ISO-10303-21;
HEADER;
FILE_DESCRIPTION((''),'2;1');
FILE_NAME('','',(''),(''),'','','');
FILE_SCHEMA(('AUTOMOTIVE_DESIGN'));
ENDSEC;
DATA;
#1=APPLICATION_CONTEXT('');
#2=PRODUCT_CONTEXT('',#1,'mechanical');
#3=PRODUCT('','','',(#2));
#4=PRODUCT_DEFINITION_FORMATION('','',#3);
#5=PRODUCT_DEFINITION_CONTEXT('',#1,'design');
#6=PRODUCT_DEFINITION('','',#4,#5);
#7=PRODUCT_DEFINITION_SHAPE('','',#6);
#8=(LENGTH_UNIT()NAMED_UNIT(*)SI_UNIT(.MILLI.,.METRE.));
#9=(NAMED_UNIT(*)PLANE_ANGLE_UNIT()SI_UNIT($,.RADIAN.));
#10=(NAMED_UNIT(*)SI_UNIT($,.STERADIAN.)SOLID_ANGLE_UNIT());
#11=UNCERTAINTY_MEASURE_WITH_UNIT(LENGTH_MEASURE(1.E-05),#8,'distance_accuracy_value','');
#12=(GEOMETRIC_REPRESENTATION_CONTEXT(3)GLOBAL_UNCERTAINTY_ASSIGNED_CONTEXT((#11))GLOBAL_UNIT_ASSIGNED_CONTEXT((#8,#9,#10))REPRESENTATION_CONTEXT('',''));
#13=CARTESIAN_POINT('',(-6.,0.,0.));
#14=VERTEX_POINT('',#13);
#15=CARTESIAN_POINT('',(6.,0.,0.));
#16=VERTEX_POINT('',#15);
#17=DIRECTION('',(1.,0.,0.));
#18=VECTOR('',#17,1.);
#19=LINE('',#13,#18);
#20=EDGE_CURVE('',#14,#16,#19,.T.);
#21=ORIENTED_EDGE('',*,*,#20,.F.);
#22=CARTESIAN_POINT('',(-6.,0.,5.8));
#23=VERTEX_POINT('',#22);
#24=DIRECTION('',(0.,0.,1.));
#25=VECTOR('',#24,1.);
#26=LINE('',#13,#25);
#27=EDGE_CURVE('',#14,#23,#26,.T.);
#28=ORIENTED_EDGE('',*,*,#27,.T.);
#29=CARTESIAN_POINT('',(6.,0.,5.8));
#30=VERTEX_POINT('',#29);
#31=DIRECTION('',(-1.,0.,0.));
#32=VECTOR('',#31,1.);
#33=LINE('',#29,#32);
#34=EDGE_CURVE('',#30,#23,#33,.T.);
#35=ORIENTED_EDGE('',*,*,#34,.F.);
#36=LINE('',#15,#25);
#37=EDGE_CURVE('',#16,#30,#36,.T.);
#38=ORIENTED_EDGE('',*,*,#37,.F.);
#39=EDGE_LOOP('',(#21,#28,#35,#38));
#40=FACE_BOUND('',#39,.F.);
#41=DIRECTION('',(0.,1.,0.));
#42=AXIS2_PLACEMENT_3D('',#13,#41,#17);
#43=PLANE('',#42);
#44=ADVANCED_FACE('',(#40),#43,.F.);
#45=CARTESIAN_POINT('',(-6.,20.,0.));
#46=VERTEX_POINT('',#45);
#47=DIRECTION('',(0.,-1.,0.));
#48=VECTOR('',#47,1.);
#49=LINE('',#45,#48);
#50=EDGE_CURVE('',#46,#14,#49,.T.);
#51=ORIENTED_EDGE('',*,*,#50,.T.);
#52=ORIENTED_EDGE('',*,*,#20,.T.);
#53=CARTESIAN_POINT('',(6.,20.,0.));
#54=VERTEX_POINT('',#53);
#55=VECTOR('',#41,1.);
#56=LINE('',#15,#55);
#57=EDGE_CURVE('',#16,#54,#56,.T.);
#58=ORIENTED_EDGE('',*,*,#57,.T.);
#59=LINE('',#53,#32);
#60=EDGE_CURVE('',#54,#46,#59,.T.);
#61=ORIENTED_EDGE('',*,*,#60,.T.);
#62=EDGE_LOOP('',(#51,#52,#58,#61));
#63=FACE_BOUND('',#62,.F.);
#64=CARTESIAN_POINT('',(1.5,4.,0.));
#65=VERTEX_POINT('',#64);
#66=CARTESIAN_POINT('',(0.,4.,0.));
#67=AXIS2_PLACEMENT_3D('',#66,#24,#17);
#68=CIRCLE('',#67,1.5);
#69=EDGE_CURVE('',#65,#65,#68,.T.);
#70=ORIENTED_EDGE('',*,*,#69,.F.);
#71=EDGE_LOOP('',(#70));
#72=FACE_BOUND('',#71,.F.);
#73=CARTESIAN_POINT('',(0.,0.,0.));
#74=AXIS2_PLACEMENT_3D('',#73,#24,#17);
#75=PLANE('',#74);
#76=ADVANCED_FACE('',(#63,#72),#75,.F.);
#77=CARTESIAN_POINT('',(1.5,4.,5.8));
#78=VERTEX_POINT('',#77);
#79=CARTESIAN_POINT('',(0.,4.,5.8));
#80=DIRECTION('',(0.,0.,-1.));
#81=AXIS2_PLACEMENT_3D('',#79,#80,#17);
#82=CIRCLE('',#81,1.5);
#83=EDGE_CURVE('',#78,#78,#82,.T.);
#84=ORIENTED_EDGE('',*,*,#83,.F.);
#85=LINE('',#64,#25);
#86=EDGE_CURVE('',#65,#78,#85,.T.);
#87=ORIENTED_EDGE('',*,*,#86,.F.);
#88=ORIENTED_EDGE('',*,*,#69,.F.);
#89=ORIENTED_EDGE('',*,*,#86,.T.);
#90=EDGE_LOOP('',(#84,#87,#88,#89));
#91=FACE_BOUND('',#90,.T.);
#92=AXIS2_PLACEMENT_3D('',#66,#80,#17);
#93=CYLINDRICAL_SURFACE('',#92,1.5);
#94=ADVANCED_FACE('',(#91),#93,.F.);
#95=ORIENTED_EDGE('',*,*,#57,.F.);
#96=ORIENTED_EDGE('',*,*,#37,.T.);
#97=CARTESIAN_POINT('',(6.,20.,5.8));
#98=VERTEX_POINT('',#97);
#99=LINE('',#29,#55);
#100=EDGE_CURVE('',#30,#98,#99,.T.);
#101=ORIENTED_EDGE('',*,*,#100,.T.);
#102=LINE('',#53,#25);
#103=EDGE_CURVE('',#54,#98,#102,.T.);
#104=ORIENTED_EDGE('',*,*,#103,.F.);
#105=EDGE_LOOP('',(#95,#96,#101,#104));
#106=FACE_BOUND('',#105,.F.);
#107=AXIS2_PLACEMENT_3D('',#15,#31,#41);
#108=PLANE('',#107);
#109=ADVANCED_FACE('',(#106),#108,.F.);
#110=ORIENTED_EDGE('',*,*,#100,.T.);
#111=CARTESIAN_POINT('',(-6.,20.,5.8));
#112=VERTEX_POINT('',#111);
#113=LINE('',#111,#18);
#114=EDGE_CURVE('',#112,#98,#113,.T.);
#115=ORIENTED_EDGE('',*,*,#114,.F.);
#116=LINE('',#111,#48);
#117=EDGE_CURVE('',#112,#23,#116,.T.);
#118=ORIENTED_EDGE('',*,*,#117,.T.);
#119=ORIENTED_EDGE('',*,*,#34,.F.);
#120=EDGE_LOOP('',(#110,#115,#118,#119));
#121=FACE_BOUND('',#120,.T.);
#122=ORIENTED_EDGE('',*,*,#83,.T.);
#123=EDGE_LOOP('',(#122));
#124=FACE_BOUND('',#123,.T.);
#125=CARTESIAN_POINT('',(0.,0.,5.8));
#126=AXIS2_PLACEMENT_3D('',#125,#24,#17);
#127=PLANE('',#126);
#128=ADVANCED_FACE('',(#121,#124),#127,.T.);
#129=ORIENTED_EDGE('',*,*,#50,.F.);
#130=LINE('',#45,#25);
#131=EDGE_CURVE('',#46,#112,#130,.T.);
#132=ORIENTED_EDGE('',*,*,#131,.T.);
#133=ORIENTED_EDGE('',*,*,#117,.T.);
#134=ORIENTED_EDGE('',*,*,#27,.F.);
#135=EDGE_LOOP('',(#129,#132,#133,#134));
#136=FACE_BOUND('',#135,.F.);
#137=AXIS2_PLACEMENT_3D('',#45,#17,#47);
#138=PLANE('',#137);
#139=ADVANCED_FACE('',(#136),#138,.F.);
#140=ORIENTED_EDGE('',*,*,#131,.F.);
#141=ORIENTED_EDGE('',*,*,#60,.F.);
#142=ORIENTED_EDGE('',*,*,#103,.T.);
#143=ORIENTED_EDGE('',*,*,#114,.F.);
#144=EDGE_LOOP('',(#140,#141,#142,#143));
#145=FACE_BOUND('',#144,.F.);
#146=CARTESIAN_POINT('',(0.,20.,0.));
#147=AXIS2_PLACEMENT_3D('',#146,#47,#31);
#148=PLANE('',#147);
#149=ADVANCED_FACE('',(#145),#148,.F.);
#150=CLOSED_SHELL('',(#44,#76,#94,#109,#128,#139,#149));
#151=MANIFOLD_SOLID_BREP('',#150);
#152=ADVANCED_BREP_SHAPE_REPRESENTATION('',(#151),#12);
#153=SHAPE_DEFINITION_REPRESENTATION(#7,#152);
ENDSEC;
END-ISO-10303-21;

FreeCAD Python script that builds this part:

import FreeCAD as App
import Part
import Sketcher
from FreeCAD import Vector


def add_polygon(sketch, points):
    """Adds a closed chain of lines whose ends are joined by coincident constraints."""
    first, n = sketch.GeometryCount, len(points)
    for a, b in zip(points, points[1:] + points[:1]):
        sketch.addGeometry(Part.LineSegment(App.Vector(*a, 0), App.Vector(*b, 0)), False)
    for i in range(n):
        sketch.addConstraint(Sketcher.Constraint("Coincident", first + i, 2, first + (i + 1) % n, 1))

doc = App.newDocument("Part")
body = doc.addObject("PartDesign::Body", "Body")

# Sketch on XY plane
sketch1 = body.newObject("Sketcher::SketchObject", "Sketch")
sketch1.AttachmentSupport = (doc.getObject("XY_Plane"), [""])
sketch1.MapMode = "FlatFace"
add_polygon(sketch1, [(-6, 20), (-6, 0), (6, 0), (6, 20)])  # lines 0-3
sketch1.addGeometry(Part.Circle(Vector(0, 4, 0), Vector(0, 0, 1), 1.5), False)  # 4
sketch1.addConstraint([
    Sketcher.Constraint("Vertical", 0),
    Sketcher.Constraint("Horizontal", 1),
    Sketcher.Constraint("Vertical", 2),
    Sketcher.Constraint("Horizontal", 3),
    Sketcher.Constraint("Symmetric", 0, 2, 1, 2, -1, 1),
    Sketcher.Constraint("PointOnObject", 4, 3, -2),
    Sketcher.Constraint("Diameter", 4, 3.0),
    Sketcher.Constraint("DistanceX", 1, 1, 1, 2, 12.0),
    Sketcher.Constraint("DistanceY", 0, 2, 0, 1, 20.0),
    Sketcher.Constraint("DistanceY", -1, 1, 4, 3, 4.0),
])
pad1 = body.newObject("PartDesign::Pad", "Pad")
pad1.Profile = sketch1
pad1.Length = 5.8

doc.recompute()
